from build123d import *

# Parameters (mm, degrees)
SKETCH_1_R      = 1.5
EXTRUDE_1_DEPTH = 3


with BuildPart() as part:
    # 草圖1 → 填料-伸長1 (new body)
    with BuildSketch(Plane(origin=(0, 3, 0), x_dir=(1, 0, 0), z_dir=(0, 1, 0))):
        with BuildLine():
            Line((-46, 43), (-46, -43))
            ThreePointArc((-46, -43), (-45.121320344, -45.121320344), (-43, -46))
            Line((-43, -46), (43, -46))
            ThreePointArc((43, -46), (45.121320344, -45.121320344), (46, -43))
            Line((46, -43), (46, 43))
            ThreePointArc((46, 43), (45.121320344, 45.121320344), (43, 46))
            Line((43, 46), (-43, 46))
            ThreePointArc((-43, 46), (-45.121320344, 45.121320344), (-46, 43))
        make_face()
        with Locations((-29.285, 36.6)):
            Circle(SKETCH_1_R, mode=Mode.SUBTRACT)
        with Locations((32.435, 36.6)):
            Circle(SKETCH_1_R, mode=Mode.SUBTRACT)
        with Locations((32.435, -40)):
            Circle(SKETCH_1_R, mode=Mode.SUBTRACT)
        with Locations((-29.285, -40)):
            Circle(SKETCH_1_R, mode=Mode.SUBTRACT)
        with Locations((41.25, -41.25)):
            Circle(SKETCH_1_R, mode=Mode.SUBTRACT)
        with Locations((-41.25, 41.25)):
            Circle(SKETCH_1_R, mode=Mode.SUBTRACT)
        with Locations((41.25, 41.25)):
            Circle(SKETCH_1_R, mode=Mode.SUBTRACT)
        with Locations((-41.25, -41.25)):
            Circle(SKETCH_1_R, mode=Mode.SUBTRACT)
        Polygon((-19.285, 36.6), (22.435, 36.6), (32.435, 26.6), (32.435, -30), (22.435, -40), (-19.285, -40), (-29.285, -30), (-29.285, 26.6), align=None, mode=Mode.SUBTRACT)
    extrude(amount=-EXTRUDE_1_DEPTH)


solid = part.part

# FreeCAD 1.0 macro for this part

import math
import FreeCAD as App
import Part
import Sketcher
from FreeCAD import Vector

doc = App.newDocument("Part")
body = doc.addObject("PartDesign::Body", "Body")

sketch1 = body.newObject("Sketcher::SketchObject", "Sketch")
sketch1.AttachmentSupport = (doc.getObject("XZ_Plane"), [""])
sketch1.MapMode = "FlatFace"
sketch1.AttachmentOffset = App.Placement(Vector(0, 0, -3), App.Rotation())
sketch1.addGeometry([
    Part.LineSegment(Vector(-46, -43, 0), Vector(-46, 43, 0)),
    Part.ArcOfCircle(Part.Circle(Vector(-43, 43, 0), Vector(0, 0, 1), 3), math.radians(90), math.radians(180)),
    Part.LineSegment(Vector(-43, 46, 0), Vector(43, 46, 0)),
    Part.ArcOfCircle(Part.Circle(Vector(43, 43, 0), Vector(0, 0, 1), 3), math.radians(0), math.radians(90)),
    Part.LineSegment(Vector(46, 43, 0), Vector(46, -43, 0)),
    Part.ArcOfCircle(Part.Circle(Vector(43, -43, 0), Vector(0, 0, 1), 3), math.radians(-90), math.radians(0)),
    Part.LineSegment(Vector(43, -46, 0), Vector(-43, -46, 0)),
    Part.ArcOfCircle(Part.Circle(Vector(-43, -43, 0), Vector(0, 0, 1), 3), math.radians(180), math.radians(270)),
    Part.Circle(Vector(-41.2, 41.2, 0), Vector(0, 0, 1), 1.5),
    Part.Circle(Vector(-29.3, 40, 0), Vector(0, 0, 1), 1.5),
    Part.Circle(Vector(32.4, 40, 0), Vector(0, 0, 1), 1.5),
    Part.Circle(Vector(41.2, 41.2, 0), Vector(0, 0, 1), 1.5),
    Part.LineSegment(Vector(-29.3, -26.6, 0), Vector(-19.3, -36.6, 0)),
    Part.LineSegment(Vector(-19.3, -36.6, 0), Vector(22.4, -36.6, 0)),
    Part.LineSegment(Vector(22.4, -36.6, 0), Vector(32.4, -26.6, 0)),
    Part.LineSegment(Vector(32.4, -26.6, 0), Vector(32.4, 30, 0)),
    Part.LineSegment(Vector(32.4, 30, 0), Vector(22.4, 40, 0)),
    Part.LineSegment(Vector(22.4, 40, 0), Vector(-19.3, 40, 0)),
    Part.LineSegment(Vector(-19.3, 40, 0), Vector(-29.3, 30, 0)),
    Part.LineSegment(Vector(-29.3, 30, 0), Vector(-29.3, -26.6, 0)),
    Part.Circle(Vector(-41.2, -41.2, 0), Vector(0, 0, 1), 1.5),
    Part.Circle(Vector(-29.3, -36.6, 0), Vector(0, 0, 1), 1.5),
    Part.Circle(Vector(32.4, -36.6, 0), Vector(0, 0, 1), 1.5),
    Part.Circle(Vector(41.2, -41.2, 0), Vector(0, 0, 1), 1.5),
], False)
sketch1.addConstraint([
    Sketcher.Constraint("Tangent", 0, 2, 1, 2),
    Sketcher.Constraint("Tangent", 1, 1, 2, 1),
    Sketcher.Constraint("Tangent", 2, 2, 3, 2),
    Sketcher.Constraint("Tangent", 3, 1, 4, 1),
    Sketcher.Constraint("Tangent", 4, 2, 5, 2),
    Sketcher.Constraint("Tangent", 5, 1, 6, 1),
    Sketcher.Constraint("Tangent", 6, 2, 7, 2),
    Sketcher.Constraint("Tangent", 7, 1, 0, 1),
    Sketcher.Constraint("Coincident", 12, 2, 13, 1),
    Sketcher.Constraint("Coincident", 13, 2, 14, 1),
    Sketcher.Constraint("Coincident", 14, 2, 15, 1),
    Sketcher.Constraint("Coincident", 15, 2, 16, 1),
    Sketcher.Constraint("Coincident", 16, 2, 17, 1),
    Sketcher.Constraint("Coincident", 17, 2, 18, 1),
    Sketcher.Constraint("Coincident", 18, 2, 19, 1),
    Sketcher.Constraint("Coincident", 19, 2, 12, 1),
    Sketcher.Constraint("Vertical", 0),
    Sketcher.Constraint("Horizontal", 2),
    Sketcher.Constraint("Vertical", 4),
    Sketcher.Constraint("Horizontal", 6),
    Sketcher.Constraint("Horizontal", 13),
    Sketcher.Constraint("Vertical", 15),
    Sketcher.Constraint("Horizontal", 17),
    Sketcher.Constraint("Vertical", 19),
    Sketcher.Constraint("Equal", 1, 3),
    Sketcher.Constraint("Equal", 3, 5),
    Sketcher.Constraint("Equal", 5, 7),
    Sketcher.Constraint("Equal", 8, 9),
    Sketcher.Constraint("Equal", 9, 10),
    Sketcher.Constraint("Equal", 10, 11),
    Sketcher.Constraint("Equal", 11, 20),
    Sketcher.Constraint("Equal", 20, 21),
    Sketcher.Constraint("Equal", 21, 22),
    Sketcher.Constraint("Equal", 22, 23),
    Sketcher.Constraint("Symmetric", 1, 3, 5, 3, -1, 1),
    Sketcher.Constraint("Symmetric", 11, 3, 20, 3, -1, 1),
    Sketcher.Constraint("Symmetric", 8, 3, 23, 3, -1, 1),
    Sketcher.Constraint("Symmetric", 8, 3, 11, 3, -2),
    Sketcher.Constraint("Perpendicular", 12, 14),
    Sketcher.Constraint("Perpendicular", 14, 16),
    Sketcher.Constraint("Perpendicular", 16, 18),
    Sketcher.Constraint("Horizontal", 9, 3, 10, 3),
    Sketcher.Constraint("Horizontal", 21, 3, 22, 3),
    Sketcher.Constraint("Horizontal", 22, 3, 12, 2),
    Sketcher.Constraint("Horizontal", 10, 3, 16, 2),
    Sketcher.Constraint("Horizontal", 15, 2, 18, 2),
    Sketcher.Constraint("Horizontal", 14, 2, 19, 2),
    Sketcher.Constraint("Vertical", 9, 3, 21, 3),
    Sketcher.Constraint("Vertical", 10, 3, 22, 3),
    Sketcher.Constraint("Vertical", 22, 3, 14, 2),
    Sketcher.Constraint("Vertical", 13, 2, 16, 2),
    Sketcher.Constraint("Vertical", 12, 2, 17, 2),
    Sketcher.Constraint("Vertical", 21, 3, 18, 2),
    Sketcher.Constraint("Equal", 6, 0),
    Sketcher.Constraint("Diameter", 8, 3.0),
    Sketcher.Constraint("Radius", 1, 3.0),
    Sketcher.Constraint("DistanceX", 2, 1, 2, 2, 86.0),
    Sketcher.Constraint("DistanceY", 15, 1, 15, 2, 56.6),
    Sketcher.Constraint("DistanceY", -1, 1, 9, 3, 40.0),
    Sketcher.Constraint("DistanceY", -1, 1, 15, 2, 30.0),
    Sketcher.Constraint("DistanceX", 13, 1, 13, 2, 41.72),
    Sketcher.Constraint("DistanceX", 8, 3, 11, 3, 82.5),
    Sketcher.Constraint("DistanceY", 20, 3, 8, 3, 82.5),
    Sketcher.Constraint("DistanceX", 9, 3, -1, 1, 29.285),
])
pad1 = body.newObject("PartDesign::Pad", "Pad")
pad1.Profile = sketch1
pad1.Length = 3

doc.recompute()
